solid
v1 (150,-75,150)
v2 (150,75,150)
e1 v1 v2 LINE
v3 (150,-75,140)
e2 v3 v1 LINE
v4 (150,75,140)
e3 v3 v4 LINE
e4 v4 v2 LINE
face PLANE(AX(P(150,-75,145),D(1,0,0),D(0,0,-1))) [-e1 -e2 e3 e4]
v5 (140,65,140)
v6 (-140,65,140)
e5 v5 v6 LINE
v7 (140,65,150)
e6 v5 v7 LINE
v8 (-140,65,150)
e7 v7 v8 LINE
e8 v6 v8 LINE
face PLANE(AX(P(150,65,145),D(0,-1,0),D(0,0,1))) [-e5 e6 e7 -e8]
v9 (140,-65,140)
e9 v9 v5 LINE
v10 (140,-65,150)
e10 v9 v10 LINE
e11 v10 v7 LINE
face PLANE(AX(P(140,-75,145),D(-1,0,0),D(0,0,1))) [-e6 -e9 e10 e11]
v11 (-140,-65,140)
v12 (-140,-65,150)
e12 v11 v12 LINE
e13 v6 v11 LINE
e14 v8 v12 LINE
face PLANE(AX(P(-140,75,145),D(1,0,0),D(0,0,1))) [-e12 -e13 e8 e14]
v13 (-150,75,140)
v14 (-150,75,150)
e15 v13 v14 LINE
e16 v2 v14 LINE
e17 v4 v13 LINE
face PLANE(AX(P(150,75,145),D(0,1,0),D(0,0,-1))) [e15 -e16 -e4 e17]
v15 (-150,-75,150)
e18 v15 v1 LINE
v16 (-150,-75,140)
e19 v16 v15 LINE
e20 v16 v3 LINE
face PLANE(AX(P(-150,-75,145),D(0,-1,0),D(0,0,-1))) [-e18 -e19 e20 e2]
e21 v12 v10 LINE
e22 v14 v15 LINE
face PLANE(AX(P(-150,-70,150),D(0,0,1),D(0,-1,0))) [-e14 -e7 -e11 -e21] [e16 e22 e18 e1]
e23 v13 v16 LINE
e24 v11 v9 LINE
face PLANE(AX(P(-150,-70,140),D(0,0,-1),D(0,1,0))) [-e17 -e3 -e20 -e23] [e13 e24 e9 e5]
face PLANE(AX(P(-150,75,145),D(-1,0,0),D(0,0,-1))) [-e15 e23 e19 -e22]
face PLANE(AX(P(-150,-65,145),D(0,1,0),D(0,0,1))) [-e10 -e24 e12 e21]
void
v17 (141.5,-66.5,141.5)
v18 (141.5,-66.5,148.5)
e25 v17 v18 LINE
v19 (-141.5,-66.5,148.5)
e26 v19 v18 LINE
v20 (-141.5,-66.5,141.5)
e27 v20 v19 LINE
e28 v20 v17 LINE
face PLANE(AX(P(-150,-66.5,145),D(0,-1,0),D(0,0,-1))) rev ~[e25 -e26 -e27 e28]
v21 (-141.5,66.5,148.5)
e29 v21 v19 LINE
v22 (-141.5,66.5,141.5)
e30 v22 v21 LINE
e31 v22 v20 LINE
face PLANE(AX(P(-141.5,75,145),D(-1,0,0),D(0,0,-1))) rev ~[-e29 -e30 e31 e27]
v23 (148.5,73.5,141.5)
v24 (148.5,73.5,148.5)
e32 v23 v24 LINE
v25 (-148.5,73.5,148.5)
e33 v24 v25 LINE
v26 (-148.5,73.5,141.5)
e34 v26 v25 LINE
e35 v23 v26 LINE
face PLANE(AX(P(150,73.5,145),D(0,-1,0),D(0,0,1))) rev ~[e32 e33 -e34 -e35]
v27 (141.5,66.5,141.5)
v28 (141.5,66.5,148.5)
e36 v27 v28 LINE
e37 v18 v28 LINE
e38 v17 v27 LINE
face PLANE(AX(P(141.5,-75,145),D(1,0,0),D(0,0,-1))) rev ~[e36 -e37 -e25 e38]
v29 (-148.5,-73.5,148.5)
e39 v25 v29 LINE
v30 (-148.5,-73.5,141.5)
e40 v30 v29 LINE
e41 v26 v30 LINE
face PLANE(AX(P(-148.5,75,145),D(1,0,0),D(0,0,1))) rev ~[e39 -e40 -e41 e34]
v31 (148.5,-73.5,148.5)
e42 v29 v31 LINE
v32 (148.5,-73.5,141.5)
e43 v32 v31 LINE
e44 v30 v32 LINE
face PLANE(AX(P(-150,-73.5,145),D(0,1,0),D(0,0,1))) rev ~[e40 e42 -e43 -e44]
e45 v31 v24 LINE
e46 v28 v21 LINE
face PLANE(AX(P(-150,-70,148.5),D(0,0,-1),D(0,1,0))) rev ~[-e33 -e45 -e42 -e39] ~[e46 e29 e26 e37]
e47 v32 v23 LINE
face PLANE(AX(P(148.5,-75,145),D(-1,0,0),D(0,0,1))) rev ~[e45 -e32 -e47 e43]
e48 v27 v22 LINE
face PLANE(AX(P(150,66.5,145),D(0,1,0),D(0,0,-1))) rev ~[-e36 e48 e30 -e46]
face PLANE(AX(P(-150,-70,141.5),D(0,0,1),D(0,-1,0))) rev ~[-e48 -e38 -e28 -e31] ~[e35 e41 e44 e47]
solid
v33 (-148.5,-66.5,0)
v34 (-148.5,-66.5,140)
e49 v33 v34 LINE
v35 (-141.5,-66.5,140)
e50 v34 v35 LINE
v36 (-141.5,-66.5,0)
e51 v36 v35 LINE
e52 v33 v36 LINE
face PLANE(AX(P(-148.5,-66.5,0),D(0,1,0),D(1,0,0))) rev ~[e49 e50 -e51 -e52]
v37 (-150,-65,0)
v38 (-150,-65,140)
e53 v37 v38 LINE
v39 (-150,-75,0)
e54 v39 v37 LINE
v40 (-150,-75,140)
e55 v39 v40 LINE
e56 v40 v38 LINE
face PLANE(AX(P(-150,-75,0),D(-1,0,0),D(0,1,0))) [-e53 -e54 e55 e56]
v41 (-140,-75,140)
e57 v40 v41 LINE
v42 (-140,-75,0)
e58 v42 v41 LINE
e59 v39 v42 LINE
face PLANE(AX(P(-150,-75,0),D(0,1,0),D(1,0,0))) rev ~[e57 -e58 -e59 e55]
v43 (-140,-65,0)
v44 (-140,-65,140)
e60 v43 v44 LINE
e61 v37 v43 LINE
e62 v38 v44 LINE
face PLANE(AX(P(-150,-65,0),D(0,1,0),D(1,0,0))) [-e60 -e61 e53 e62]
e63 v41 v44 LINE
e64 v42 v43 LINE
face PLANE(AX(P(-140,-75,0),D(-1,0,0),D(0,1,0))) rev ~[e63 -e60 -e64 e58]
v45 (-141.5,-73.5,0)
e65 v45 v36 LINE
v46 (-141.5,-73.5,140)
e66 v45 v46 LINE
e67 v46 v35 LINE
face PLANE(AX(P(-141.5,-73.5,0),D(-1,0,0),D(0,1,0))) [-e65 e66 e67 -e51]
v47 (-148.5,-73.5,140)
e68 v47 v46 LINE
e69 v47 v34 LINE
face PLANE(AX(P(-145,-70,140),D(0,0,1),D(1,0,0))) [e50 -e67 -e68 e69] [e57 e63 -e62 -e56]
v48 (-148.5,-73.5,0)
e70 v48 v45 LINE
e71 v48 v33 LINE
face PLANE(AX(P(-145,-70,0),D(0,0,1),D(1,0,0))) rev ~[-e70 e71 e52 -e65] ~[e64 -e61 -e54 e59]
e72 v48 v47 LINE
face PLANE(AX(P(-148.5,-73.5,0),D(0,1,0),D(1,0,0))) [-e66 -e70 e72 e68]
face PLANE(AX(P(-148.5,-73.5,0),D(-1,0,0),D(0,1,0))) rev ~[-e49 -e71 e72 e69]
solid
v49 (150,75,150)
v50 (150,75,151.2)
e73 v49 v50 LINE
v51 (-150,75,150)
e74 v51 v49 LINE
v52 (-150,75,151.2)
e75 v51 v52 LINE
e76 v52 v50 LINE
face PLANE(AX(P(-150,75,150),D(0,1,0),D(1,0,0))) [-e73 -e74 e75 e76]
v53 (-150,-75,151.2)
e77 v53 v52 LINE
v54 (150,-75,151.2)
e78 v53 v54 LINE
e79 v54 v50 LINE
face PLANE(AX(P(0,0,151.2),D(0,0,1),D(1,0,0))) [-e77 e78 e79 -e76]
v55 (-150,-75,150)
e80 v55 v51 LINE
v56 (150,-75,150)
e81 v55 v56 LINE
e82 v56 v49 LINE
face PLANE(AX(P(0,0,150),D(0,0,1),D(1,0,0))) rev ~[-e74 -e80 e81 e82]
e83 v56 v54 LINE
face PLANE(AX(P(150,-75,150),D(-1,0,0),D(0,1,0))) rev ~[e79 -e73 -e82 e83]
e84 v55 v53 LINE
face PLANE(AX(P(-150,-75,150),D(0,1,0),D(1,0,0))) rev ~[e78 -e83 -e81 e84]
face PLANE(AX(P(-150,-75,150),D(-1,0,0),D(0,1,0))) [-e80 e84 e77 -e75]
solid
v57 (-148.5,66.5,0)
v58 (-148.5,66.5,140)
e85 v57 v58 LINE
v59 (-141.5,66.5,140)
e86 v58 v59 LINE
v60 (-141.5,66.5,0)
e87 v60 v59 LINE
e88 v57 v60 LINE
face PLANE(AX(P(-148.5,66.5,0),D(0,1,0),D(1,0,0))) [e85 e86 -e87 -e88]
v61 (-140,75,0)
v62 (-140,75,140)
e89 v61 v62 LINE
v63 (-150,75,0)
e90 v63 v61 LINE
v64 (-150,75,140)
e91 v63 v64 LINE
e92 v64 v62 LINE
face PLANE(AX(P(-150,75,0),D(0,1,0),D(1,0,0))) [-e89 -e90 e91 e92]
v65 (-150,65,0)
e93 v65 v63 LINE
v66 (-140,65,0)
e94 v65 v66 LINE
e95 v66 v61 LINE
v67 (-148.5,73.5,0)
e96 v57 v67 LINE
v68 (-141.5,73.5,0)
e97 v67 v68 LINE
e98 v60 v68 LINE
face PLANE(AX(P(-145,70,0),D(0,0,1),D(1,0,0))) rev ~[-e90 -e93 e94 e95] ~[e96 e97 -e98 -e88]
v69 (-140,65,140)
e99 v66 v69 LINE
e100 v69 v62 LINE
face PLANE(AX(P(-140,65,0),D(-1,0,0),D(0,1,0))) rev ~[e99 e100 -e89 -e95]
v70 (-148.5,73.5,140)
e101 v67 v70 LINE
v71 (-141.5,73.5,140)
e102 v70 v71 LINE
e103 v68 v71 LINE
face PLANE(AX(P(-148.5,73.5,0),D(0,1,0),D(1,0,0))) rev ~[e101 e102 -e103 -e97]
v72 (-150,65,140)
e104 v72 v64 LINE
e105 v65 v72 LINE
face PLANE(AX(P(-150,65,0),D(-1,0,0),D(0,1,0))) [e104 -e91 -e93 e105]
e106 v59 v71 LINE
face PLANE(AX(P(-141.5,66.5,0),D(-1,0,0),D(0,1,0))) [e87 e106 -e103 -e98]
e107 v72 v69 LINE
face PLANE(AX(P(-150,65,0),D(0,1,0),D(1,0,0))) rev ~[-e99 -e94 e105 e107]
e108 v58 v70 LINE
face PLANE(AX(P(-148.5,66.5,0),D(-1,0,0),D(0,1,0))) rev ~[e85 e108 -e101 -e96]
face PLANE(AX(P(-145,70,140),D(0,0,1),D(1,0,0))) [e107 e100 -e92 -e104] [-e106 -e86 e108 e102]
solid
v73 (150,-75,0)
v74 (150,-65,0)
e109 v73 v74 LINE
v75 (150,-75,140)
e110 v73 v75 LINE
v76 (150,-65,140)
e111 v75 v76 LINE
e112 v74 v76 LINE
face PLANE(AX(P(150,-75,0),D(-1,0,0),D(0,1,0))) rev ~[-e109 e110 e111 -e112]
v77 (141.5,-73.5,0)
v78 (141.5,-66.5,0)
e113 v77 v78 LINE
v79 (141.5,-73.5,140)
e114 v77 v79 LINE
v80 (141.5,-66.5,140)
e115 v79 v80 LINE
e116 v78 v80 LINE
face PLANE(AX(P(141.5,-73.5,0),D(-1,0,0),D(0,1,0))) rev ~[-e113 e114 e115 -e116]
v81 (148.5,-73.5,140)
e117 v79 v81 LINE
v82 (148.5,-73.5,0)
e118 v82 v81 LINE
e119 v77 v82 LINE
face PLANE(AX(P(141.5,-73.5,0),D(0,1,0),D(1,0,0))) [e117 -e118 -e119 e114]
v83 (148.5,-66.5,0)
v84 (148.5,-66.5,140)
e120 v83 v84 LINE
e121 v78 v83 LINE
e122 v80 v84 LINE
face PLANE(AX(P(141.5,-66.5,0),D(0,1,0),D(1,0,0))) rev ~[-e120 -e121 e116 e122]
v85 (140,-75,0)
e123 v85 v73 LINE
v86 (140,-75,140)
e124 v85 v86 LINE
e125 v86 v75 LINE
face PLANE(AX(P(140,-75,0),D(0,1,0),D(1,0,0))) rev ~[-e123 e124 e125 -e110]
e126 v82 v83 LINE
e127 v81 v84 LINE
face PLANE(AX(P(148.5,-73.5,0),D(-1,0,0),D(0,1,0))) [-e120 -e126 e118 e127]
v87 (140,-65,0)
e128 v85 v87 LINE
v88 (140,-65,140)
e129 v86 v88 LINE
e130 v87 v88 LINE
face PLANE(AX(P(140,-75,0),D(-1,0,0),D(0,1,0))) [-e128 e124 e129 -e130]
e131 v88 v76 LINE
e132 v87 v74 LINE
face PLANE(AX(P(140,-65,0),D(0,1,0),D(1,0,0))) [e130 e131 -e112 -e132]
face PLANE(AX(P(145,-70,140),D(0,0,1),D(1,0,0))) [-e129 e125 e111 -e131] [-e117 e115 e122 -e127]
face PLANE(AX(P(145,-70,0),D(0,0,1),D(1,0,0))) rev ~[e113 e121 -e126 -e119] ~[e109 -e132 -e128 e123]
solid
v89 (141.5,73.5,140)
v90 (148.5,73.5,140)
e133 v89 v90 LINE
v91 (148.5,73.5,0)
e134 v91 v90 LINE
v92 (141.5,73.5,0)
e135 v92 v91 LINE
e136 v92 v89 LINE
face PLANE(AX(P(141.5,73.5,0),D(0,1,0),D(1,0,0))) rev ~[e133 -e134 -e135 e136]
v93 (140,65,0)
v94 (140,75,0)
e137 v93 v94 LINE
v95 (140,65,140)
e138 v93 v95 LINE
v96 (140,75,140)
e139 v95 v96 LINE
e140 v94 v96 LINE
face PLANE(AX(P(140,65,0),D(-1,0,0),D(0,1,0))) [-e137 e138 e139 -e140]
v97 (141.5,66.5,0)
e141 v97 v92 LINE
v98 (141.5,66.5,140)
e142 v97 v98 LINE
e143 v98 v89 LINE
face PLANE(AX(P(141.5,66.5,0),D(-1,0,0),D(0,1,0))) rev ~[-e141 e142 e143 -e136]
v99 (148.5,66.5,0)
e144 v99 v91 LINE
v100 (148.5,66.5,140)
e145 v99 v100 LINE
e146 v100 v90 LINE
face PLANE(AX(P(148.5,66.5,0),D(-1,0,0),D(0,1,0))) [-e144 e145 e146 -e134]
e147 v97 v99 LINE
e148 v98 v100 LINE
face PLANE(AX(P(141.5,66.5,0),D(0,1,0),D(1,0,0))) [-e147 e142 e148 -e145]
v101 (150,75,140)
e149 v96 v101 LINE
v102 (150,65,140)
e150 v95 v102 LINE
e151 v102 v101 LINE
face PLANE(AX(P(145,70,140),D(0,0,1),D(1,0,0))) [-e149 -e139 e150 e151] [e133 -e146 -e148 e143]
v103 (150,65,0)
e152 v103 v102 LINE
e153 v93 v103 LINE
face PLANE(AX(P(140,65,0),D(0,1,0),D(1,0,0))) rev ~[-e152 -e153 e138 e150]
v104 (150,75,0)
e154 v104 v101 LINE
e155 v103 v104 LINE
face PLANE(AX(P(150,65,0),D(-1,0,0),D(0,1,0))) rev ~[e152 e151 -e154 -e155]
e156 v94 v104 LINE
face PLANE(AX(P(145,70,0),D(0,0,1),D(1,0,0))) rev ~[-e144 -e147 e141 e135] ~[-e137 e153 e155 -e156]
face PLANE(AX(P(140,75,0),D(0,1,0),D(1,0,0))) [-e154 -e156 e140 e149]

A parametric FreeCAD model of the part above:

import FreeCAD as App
import Part
import Sketcher

V = App.Vector


def add_polygon(sketch, points):
    """Adds a closed chain of lines whose ends are joined by coincident constraints."""
    first, n = sketch.GeometryCount, len(points)
    for a, b in zip(points, points[1:] + points[:1]):
        sketch.addGeometry(Part.LineSegment(App.Vector(*a, 0), App.Vector(*b, 0)), False)
    for i in range(n):
        sketch.addConstraint(Sketcher.Constraint("Coincident", first + i, 2, first + (i + 1) % n, 1))

doc = App.newDocument("Part")
params = doc.addObject("Spreadsheet::Sheet", "Params")
for row, (alias, value) in enumerate([
    ("sketch1_width", "10 mm"),
    ("sketch1_width2", "7 mm"),
    ("pad1_length", "140 mm"),
    ("sketch2_width", "10 mm"),
    ("sketch2_width2", "7 mm"),
    ("pad2_length", "140 mm"),
    ("sketch3_width", "10 mm"),
    ("sketch3_width2", "7 mm"),
    ("pad3_length", "140 mm"),
    ("sketch4_width", "10 mm"),
    ("sketch4_width2", "7 mm"),
    ("pad4_length", "140 mm"),
    ("sketch5_width", "10 mm"),
    ("sketch5_width2", "7 mm"),
    ("sketch6_width", "300 mm"),
    ("sketch6_height", "150 mm"),
    ("sketch7_width", "300 mm"),
    ("sketch7_height", "150 mm"),
    ("pad5_length", "1.2 mm"),
], start=1):
    params.set(f"A{row}", alias)
    params.set(f"B{row}", "=" + value)
    params.setAlias(f"B{row}", alias)

body = doc.addObject("PartDesign::Body", "Body")

# Sketch on XY plane
sketch1 = doc.addObject("Sketcher::SketchObject", "Sketch")
body.addObject(sketch1)
sketch1.AttachmentSupport = (doc.XY_Plane, [""])
sketch1.MapMode = "FlatFace"
add_polygon(sketch1, [(-150, 75), (-150, 65), (-140, 65), (-140, 75)])  # lines 0-3
add_polygon(sketch1, [(-141.5, 66.5), (-148.5, 66.5), (-148.5, 73.5), (-141.5, 73.5)])  # lines 4-7
sketch1.addConstraint([
    Sketcher.Constraint("Vertical", 0),
    Sketcher.Constraint("Horizontal", 1),
    Sketcher.Constraint("Vertical", 2),
    Sketcher.Constraint("Horizontal", 3),
    Sketcher.Constraint("Horizontal", 4),
    Sketcher.Constraint("Vertical", 5),
    Sketcher.Constraint("Horizontal", 6),
    Sketcher.Constraint("Vertical", 7),
    Sketcher.Constraint("Equal", 3, 0),
    Sketcher.Constraint("Equal", 6, 5),
    Sketcher.Constraint("DistanceX", 1, 1, 1, 2, 10.0),
    Sketcher.Constraint("DistanceX", 4, 2, 4, 1, 7.0),
    Sketcher.Constraint("DistanceX", 0, 2, -1, 1, 150.0),
    Sketcher.Constraint("DistanceY", -1, 1, 0, 2, 65.0),
    Sketcher.Constraint("DistanceX", 4, 2, -1, 1, 148.5),
    Sketcher.Constraint("DistanceY", -1, 1, 4, 2, 66.5),
])
sketch1.setExpression("Constraints[18]", "Params.sketch1_width")
sketch1.setExpression("Constraints[19]", "Params.sketch1_width2")
pad1 = doc.addObject("PartDesign::Pad", "Pad")
body.addObject(pad1)
pad1.Profile = sketch1
pad1.setExpression("Length", "Params.pad1_length")
body2 = doc.addObject("PartDesign::Body", "Body001")

# Sketch on XY plane
sketch2 = doc.addObject("Sketcher::SketchObject", "Sketch001")
body2.addObject(sketch2)
sketch2.AttachmentSupport = (doc.getObject("XY_Plane001"), [""])
sketch2.MapMode = "FlatFace"
add_polygon(sketch2, [(140, 75), (140, 65), (150, 65), (150, 75)])  # lines 0-3
add_polygon(sketch2, [(148.5, 66.5), (141.5, 66.5), (141.5, 73.5), (148.5, 73.5)])  # lines 4-7
sketch2.addConstraint([
    Sketcher.Constraint("Vertical", 0),
    Sketcher.Constraint("Horizontal", 1),
    Sketcher.Constraint("Vertical", 2),
    Sketcher.Constraint("Horizontal", 3),
    Sketcher.Constraint("Horizontal", 4),
    Sketcher.Constraint("Vertical", 5),
    Sketcher.Constraint("Horizontal", 6),
    Sketcher.Constraint("Vertical", 7),
    Sketcher.Constraint("Equal", 3, 0),
    Sketcher.Constraint("Equal", 6, 5),
    Sketcher.Constraint("DistanceX", 1, 1, 1, 2, 10.0),
    Sketcher.Constraint("DistanceX", 4, 2, 4, 1, 7.0),
    Sketcher.Constraint("DistanceX", -1, 1, 0, 2, 140.0),
    Sketcher.Constraint("DistanceY", -1, 1, 0, 2, 65.0),
    Sketcher.Constraint("DistanceX", -1, 1, 4, 2, 141.5),
    Sketcher.Constraint("DistanceY", -1, 1, 4, 2, 66.5),
])
sketch2.setExpression("Constraints[18]", "Params.sketch2_width")
sketch2.setExpression("Constraints[19]", "Params.sketch2_width2")
pad2 = doc.addObject("PartDesign::Pad", "Pad001")
body2.addObject(pad2)
pad2.Profile = sketch2
pad2.setExpression("Length", "Params.pad2_length")
body3 = doc.addObject("PartDesign::Body", "Body002")

# Sketch on XY plane
sketch3 = doc.addObject("Sketcher::SketchObject", "Sketch002")
body3.addObject(sketch3)
sketch3.AttachmentSupport = (doc.getObject("XY_Plane002"), [""])
sketch3.MapMode = "FlatFace"
add_polygon(sketch3, [(140, -65), (140, -75), (150, -75), (150, -65)])  # lines 0-3
add_polygon(sketch3, [(148.5, -73.5), (141.5, -73.5), (141.5, -66.5), (148.5, -66.5)])  # lines 4-7
sketch3.addConstraint([
    Sketcher.Constraint("Vertical", 0),
    Sketcher.Constraint("Horizontal", 1),
    Sketcher.Constraint("Vertical", 2),
    Sketcher.Constraint("Horizontal", 3),
    Sketcher.Constraint("Horizontal", 4),
    Sketcher.Constraint("Vertical", 5),
    Sketcher.Constraint("Horizontal", 6),
    Sketcher.Constraint("Vertical", 7),
    Sketcher.Constraint("Equal", 3, 0),
    Sketcher.Constraint("Equal", 6, 5),
    Sketcher.Constraint("DistanceX", 1, 1, 1, 2, 10.0),
    Sketcher.Constraint("DistanceX", 4, 2, 4, 1, 7.0),
    Sketcher.Constraint("DistanceX", -1, 1, 0, 2, 140.0),
    Sketcher.Constraint("DistanceY", 0, 2, -1, 1, 75.0),
    Sketcher.Constraint("DistanceX", -1, 1, 4, 2, 141.5),
    Sketcher.Constraint("DistanceY", 4, 2, -1, 1, 73.5),
])
sketch3.setExpression("Constraints[18]", "Params.sketch3_width")
sketch3.setExpression("Constraints[19]", "Params.sketch3_width2")
pad3 = doc.addObject("PartDesign::Pad", "Pad002")
body3.addObject(pad3)
pad3.Profile = sketch3
pad3.setExpression("Length", "Params.pad3_length")
body4 = doc.addObject("PartDesign::Body", "Body003")

# Sketch on XY plane
sketch4 = doc.addObject("Sketcher::SketchObject", "Sketch003")
body4.addObject(sketch4)
sketch4.AttachmentSupport = (doc.getObject("XY_Plane003"), [""])
sketch4.MapMode = "FlatFace"
add_polygon(sketch4, [(-150, -65), (-150, -75), (-140, -75), (-140, -65)])  # lines 0-3
add_polygon(sketch4, [(-141.5, -73.5), (-148.5, -73.5), (-148.5, -66.5), (-141.5, -66.5)])  # lines 4-7
sketch4.addConstraint([
    Sketcher.Constraint("Vertical", 0),
    Sketcher.Constraint("Horizontal", 1),
    Sketcher.Constraint("Vertical", 2),
    Sketcher.Constraint("Horizontal", 3),
    Sketcher.Constraint("Horizontal", 4),
    Sketcher.Constraint("Vertical", 5),
    Sketcher.Constraint("Horizontal", 6),
    Sketcher.Constraint("Vertical", 7),
    Sketcher.Constraint("Equal", 3, 0),
    Sketcher.Constraint("Equal", 6, 5),
    Sketcher.Constraint("DistanceX", 1, 1, 1, 2, 10.0),
    Sketcher.Constraint("DistanceX", 4, 2, 4, 1, 7.0),
    Sketcher.Constraint("DistanceX", 0, 2, -1, 1, 150.0),
    Sketcher.Constraint("DistanceY", 0, 2, -1, 1, 75.0),
    Sketcher.Constraint("DistanceX", 4, 2, -1, 1, 148.5),
    Sketcher.Constraint("DistanceY", 4, 2, -1, 1, 73.5),
])
sketch4.setExpression("Constraints[18]", "Params.sketch4_width")
sketch4.setExpression("Constraints[19]", "Params.sketch4_width2")
pad4 = doc.addObject("PartDesign::Pad", "Pad003")
body4.addObject(pad4)
pad4.Profile = sketch4
pad4.setExpression("Length", "Params.pad4_length")
body5 = doc.addObject("PartDesign::Body", "Body004")

# Sketch on YZ plane
sketch5 = doc.addObject("Sketcher::SketchObject", "Sketch004")
body5.addObject(sketch5)
sketch5.AttachmentSupport = (doc.getObject("YZ_Plane004"), [""])
sketch5.MapMode = "FlatFace"
add_polygon(sketch5, [(-75, 150), (-75, 140), (-65, 140), (-65, 150)])  # lines 0-3
add_polygon(sketch5, [(-66.5, 141.5), (-73.5, 141.5), (-73.5, 148.5), (-66.5, 148.5)])  # lines 4-7
sketch5.addConstraint([
    Sketcher.Constraint("Vertical", 0),
    Sketcher.Constraint("Horizontal", 1),
    Sketcher.Constraint("Vertical", 2),
    Sketcher.Constraint("Horizontal", 3),
    Sketcher.Constraint("Horizontal", 4),
    Sketcher.Constraint("Vertical", 5),
    Sketcher.Constraint("Horizontal", 6),
    Sketcher.Constraint("Vertical", 7),
    Sketcher.Constraint("Equal", 3, 0),
    Sketcher.Constraint("Equal", 6, 5),
    Sketcher.Constraint("DistanceX", 1, 1, 1, 2, 10.0),
    Sketcher.Constraint("DistanceX", 4, 2, 4, 1, 7.0),
    Sketcher.Constraint("DistanceX", 0, 2, -1, 1, 75.0),
    Sketcher.Constraint("DistanceY", -1, 1, 0, 2, 140.0),
    Sketcher.Constraint("DistanceX", 4, 2, -1, 1, 73.5),
    Sketcher.Constraint("DistanceY", -1, 1, 4, 2, 141.5),
])
sketch5.setExpression("Constraints[18]", "Params.sketch5_width")
sketch5.setExpression("Constraints[19]", "Params.sketch5_width2")

# Sketch on XY plane
sketch6 = doc.addObject("Sketcher::SketchObject", "Sketch005")
body5.addObject(sketch6)
sketch6.AttachmentSupport = (doc.getObject("XY_Plane004"), [""])
sketch6.MapMode = "FlatFace"
sketch6.AttachmentOffset = App.Placement(V(0, 0, 140), App.Rotation())
add_polygon(sketch6, [(-150, -75), (150, -75), (150, 75), (-150, 75)])  # lines 0-3
sketch6.addConstraint([
    Sketcher.Constraint("Horizontal", 0),
    Sketcher.Constraint("Vertical", 1),
    Sketcher.Constraint("Horizontal", 2),
    Sketcher.Constraint("Vertical", 3),
    Sketcher.Constraint("Symmetric", 0, 2, 2, 2, -1, 1),
    Sketcher.Constraint("DistanceX", 0, 1, 0, 2, 300.0),
    Sketcher.Constraint("DistanceY", 1, 1, 1, 2, 150.0),
])
sketch6.setExpression("Constraints[9]", "Params.sketch6_width")
sketch6.setExpression("Constraints[10]", "Params.sketch6_height")
doc.recompute()

additivepipe = doc.addObject("PartDesign::AdditivePipe", "AdditivePipe")
body5.addObject(additivepipe)
additivepipe.Profile = sketch5
additivepipe.Spine = (sketch6, ["Edge1", "Edge2", "Edge3", "Edge4"])
additivepipe.Transition = "Right corner"
body6 = doc.addObject("PartDesign::Body", "Body005")

# Sketch on XY plane
sketch7 = doc.addObject("Sketcher::SketchObject", "Sketch006")
body6.addObject(sketch7)
sketch7.AttachmentSupport = (doc.getObject("XY_Plane005"), [""])
sketch7.MapMode = "FlatFace"
sketch7.AttachmentOffset = App.Placement(V(0, 0, 150), App.Rotation())
add_polygon(sketch7, [(-150, 75), (-150, -75), (150, -75), (150, 75)])  # lines 0-3
sketch7.addConstraint([
    Sketcher.Constraint("Vertical", 0),
    Sketcher.Constraint("Horizontal", 1),
    Sketcher.Constraint("Vertical", 2),
    Sketcher.Constraint("Horizontal", 3),
    Sketcher.Constraint("Symmetric", 0, 2, 2, 2, -1, 1),
    Sketcher.Constraint("DistanceX", 1, 1, 1, 2, 300.0),
    Sketcher.Constraint("DistanceY", 0, 2, 0, 1, 150.0),
])
sketch7.setExpression("Constraints[9]", "Params.sketch7_width")
sketch7.setExpression("Constraints[10]", "Params.sketch7_height")
pad5 = doc.addObject("PartDesign::Pad", "Pad004")
body6.addObject(pad5)
pad5.Profile = sketch7
pad5.setExpression("Length", "Params.pad5_length")

doc.recompute()
